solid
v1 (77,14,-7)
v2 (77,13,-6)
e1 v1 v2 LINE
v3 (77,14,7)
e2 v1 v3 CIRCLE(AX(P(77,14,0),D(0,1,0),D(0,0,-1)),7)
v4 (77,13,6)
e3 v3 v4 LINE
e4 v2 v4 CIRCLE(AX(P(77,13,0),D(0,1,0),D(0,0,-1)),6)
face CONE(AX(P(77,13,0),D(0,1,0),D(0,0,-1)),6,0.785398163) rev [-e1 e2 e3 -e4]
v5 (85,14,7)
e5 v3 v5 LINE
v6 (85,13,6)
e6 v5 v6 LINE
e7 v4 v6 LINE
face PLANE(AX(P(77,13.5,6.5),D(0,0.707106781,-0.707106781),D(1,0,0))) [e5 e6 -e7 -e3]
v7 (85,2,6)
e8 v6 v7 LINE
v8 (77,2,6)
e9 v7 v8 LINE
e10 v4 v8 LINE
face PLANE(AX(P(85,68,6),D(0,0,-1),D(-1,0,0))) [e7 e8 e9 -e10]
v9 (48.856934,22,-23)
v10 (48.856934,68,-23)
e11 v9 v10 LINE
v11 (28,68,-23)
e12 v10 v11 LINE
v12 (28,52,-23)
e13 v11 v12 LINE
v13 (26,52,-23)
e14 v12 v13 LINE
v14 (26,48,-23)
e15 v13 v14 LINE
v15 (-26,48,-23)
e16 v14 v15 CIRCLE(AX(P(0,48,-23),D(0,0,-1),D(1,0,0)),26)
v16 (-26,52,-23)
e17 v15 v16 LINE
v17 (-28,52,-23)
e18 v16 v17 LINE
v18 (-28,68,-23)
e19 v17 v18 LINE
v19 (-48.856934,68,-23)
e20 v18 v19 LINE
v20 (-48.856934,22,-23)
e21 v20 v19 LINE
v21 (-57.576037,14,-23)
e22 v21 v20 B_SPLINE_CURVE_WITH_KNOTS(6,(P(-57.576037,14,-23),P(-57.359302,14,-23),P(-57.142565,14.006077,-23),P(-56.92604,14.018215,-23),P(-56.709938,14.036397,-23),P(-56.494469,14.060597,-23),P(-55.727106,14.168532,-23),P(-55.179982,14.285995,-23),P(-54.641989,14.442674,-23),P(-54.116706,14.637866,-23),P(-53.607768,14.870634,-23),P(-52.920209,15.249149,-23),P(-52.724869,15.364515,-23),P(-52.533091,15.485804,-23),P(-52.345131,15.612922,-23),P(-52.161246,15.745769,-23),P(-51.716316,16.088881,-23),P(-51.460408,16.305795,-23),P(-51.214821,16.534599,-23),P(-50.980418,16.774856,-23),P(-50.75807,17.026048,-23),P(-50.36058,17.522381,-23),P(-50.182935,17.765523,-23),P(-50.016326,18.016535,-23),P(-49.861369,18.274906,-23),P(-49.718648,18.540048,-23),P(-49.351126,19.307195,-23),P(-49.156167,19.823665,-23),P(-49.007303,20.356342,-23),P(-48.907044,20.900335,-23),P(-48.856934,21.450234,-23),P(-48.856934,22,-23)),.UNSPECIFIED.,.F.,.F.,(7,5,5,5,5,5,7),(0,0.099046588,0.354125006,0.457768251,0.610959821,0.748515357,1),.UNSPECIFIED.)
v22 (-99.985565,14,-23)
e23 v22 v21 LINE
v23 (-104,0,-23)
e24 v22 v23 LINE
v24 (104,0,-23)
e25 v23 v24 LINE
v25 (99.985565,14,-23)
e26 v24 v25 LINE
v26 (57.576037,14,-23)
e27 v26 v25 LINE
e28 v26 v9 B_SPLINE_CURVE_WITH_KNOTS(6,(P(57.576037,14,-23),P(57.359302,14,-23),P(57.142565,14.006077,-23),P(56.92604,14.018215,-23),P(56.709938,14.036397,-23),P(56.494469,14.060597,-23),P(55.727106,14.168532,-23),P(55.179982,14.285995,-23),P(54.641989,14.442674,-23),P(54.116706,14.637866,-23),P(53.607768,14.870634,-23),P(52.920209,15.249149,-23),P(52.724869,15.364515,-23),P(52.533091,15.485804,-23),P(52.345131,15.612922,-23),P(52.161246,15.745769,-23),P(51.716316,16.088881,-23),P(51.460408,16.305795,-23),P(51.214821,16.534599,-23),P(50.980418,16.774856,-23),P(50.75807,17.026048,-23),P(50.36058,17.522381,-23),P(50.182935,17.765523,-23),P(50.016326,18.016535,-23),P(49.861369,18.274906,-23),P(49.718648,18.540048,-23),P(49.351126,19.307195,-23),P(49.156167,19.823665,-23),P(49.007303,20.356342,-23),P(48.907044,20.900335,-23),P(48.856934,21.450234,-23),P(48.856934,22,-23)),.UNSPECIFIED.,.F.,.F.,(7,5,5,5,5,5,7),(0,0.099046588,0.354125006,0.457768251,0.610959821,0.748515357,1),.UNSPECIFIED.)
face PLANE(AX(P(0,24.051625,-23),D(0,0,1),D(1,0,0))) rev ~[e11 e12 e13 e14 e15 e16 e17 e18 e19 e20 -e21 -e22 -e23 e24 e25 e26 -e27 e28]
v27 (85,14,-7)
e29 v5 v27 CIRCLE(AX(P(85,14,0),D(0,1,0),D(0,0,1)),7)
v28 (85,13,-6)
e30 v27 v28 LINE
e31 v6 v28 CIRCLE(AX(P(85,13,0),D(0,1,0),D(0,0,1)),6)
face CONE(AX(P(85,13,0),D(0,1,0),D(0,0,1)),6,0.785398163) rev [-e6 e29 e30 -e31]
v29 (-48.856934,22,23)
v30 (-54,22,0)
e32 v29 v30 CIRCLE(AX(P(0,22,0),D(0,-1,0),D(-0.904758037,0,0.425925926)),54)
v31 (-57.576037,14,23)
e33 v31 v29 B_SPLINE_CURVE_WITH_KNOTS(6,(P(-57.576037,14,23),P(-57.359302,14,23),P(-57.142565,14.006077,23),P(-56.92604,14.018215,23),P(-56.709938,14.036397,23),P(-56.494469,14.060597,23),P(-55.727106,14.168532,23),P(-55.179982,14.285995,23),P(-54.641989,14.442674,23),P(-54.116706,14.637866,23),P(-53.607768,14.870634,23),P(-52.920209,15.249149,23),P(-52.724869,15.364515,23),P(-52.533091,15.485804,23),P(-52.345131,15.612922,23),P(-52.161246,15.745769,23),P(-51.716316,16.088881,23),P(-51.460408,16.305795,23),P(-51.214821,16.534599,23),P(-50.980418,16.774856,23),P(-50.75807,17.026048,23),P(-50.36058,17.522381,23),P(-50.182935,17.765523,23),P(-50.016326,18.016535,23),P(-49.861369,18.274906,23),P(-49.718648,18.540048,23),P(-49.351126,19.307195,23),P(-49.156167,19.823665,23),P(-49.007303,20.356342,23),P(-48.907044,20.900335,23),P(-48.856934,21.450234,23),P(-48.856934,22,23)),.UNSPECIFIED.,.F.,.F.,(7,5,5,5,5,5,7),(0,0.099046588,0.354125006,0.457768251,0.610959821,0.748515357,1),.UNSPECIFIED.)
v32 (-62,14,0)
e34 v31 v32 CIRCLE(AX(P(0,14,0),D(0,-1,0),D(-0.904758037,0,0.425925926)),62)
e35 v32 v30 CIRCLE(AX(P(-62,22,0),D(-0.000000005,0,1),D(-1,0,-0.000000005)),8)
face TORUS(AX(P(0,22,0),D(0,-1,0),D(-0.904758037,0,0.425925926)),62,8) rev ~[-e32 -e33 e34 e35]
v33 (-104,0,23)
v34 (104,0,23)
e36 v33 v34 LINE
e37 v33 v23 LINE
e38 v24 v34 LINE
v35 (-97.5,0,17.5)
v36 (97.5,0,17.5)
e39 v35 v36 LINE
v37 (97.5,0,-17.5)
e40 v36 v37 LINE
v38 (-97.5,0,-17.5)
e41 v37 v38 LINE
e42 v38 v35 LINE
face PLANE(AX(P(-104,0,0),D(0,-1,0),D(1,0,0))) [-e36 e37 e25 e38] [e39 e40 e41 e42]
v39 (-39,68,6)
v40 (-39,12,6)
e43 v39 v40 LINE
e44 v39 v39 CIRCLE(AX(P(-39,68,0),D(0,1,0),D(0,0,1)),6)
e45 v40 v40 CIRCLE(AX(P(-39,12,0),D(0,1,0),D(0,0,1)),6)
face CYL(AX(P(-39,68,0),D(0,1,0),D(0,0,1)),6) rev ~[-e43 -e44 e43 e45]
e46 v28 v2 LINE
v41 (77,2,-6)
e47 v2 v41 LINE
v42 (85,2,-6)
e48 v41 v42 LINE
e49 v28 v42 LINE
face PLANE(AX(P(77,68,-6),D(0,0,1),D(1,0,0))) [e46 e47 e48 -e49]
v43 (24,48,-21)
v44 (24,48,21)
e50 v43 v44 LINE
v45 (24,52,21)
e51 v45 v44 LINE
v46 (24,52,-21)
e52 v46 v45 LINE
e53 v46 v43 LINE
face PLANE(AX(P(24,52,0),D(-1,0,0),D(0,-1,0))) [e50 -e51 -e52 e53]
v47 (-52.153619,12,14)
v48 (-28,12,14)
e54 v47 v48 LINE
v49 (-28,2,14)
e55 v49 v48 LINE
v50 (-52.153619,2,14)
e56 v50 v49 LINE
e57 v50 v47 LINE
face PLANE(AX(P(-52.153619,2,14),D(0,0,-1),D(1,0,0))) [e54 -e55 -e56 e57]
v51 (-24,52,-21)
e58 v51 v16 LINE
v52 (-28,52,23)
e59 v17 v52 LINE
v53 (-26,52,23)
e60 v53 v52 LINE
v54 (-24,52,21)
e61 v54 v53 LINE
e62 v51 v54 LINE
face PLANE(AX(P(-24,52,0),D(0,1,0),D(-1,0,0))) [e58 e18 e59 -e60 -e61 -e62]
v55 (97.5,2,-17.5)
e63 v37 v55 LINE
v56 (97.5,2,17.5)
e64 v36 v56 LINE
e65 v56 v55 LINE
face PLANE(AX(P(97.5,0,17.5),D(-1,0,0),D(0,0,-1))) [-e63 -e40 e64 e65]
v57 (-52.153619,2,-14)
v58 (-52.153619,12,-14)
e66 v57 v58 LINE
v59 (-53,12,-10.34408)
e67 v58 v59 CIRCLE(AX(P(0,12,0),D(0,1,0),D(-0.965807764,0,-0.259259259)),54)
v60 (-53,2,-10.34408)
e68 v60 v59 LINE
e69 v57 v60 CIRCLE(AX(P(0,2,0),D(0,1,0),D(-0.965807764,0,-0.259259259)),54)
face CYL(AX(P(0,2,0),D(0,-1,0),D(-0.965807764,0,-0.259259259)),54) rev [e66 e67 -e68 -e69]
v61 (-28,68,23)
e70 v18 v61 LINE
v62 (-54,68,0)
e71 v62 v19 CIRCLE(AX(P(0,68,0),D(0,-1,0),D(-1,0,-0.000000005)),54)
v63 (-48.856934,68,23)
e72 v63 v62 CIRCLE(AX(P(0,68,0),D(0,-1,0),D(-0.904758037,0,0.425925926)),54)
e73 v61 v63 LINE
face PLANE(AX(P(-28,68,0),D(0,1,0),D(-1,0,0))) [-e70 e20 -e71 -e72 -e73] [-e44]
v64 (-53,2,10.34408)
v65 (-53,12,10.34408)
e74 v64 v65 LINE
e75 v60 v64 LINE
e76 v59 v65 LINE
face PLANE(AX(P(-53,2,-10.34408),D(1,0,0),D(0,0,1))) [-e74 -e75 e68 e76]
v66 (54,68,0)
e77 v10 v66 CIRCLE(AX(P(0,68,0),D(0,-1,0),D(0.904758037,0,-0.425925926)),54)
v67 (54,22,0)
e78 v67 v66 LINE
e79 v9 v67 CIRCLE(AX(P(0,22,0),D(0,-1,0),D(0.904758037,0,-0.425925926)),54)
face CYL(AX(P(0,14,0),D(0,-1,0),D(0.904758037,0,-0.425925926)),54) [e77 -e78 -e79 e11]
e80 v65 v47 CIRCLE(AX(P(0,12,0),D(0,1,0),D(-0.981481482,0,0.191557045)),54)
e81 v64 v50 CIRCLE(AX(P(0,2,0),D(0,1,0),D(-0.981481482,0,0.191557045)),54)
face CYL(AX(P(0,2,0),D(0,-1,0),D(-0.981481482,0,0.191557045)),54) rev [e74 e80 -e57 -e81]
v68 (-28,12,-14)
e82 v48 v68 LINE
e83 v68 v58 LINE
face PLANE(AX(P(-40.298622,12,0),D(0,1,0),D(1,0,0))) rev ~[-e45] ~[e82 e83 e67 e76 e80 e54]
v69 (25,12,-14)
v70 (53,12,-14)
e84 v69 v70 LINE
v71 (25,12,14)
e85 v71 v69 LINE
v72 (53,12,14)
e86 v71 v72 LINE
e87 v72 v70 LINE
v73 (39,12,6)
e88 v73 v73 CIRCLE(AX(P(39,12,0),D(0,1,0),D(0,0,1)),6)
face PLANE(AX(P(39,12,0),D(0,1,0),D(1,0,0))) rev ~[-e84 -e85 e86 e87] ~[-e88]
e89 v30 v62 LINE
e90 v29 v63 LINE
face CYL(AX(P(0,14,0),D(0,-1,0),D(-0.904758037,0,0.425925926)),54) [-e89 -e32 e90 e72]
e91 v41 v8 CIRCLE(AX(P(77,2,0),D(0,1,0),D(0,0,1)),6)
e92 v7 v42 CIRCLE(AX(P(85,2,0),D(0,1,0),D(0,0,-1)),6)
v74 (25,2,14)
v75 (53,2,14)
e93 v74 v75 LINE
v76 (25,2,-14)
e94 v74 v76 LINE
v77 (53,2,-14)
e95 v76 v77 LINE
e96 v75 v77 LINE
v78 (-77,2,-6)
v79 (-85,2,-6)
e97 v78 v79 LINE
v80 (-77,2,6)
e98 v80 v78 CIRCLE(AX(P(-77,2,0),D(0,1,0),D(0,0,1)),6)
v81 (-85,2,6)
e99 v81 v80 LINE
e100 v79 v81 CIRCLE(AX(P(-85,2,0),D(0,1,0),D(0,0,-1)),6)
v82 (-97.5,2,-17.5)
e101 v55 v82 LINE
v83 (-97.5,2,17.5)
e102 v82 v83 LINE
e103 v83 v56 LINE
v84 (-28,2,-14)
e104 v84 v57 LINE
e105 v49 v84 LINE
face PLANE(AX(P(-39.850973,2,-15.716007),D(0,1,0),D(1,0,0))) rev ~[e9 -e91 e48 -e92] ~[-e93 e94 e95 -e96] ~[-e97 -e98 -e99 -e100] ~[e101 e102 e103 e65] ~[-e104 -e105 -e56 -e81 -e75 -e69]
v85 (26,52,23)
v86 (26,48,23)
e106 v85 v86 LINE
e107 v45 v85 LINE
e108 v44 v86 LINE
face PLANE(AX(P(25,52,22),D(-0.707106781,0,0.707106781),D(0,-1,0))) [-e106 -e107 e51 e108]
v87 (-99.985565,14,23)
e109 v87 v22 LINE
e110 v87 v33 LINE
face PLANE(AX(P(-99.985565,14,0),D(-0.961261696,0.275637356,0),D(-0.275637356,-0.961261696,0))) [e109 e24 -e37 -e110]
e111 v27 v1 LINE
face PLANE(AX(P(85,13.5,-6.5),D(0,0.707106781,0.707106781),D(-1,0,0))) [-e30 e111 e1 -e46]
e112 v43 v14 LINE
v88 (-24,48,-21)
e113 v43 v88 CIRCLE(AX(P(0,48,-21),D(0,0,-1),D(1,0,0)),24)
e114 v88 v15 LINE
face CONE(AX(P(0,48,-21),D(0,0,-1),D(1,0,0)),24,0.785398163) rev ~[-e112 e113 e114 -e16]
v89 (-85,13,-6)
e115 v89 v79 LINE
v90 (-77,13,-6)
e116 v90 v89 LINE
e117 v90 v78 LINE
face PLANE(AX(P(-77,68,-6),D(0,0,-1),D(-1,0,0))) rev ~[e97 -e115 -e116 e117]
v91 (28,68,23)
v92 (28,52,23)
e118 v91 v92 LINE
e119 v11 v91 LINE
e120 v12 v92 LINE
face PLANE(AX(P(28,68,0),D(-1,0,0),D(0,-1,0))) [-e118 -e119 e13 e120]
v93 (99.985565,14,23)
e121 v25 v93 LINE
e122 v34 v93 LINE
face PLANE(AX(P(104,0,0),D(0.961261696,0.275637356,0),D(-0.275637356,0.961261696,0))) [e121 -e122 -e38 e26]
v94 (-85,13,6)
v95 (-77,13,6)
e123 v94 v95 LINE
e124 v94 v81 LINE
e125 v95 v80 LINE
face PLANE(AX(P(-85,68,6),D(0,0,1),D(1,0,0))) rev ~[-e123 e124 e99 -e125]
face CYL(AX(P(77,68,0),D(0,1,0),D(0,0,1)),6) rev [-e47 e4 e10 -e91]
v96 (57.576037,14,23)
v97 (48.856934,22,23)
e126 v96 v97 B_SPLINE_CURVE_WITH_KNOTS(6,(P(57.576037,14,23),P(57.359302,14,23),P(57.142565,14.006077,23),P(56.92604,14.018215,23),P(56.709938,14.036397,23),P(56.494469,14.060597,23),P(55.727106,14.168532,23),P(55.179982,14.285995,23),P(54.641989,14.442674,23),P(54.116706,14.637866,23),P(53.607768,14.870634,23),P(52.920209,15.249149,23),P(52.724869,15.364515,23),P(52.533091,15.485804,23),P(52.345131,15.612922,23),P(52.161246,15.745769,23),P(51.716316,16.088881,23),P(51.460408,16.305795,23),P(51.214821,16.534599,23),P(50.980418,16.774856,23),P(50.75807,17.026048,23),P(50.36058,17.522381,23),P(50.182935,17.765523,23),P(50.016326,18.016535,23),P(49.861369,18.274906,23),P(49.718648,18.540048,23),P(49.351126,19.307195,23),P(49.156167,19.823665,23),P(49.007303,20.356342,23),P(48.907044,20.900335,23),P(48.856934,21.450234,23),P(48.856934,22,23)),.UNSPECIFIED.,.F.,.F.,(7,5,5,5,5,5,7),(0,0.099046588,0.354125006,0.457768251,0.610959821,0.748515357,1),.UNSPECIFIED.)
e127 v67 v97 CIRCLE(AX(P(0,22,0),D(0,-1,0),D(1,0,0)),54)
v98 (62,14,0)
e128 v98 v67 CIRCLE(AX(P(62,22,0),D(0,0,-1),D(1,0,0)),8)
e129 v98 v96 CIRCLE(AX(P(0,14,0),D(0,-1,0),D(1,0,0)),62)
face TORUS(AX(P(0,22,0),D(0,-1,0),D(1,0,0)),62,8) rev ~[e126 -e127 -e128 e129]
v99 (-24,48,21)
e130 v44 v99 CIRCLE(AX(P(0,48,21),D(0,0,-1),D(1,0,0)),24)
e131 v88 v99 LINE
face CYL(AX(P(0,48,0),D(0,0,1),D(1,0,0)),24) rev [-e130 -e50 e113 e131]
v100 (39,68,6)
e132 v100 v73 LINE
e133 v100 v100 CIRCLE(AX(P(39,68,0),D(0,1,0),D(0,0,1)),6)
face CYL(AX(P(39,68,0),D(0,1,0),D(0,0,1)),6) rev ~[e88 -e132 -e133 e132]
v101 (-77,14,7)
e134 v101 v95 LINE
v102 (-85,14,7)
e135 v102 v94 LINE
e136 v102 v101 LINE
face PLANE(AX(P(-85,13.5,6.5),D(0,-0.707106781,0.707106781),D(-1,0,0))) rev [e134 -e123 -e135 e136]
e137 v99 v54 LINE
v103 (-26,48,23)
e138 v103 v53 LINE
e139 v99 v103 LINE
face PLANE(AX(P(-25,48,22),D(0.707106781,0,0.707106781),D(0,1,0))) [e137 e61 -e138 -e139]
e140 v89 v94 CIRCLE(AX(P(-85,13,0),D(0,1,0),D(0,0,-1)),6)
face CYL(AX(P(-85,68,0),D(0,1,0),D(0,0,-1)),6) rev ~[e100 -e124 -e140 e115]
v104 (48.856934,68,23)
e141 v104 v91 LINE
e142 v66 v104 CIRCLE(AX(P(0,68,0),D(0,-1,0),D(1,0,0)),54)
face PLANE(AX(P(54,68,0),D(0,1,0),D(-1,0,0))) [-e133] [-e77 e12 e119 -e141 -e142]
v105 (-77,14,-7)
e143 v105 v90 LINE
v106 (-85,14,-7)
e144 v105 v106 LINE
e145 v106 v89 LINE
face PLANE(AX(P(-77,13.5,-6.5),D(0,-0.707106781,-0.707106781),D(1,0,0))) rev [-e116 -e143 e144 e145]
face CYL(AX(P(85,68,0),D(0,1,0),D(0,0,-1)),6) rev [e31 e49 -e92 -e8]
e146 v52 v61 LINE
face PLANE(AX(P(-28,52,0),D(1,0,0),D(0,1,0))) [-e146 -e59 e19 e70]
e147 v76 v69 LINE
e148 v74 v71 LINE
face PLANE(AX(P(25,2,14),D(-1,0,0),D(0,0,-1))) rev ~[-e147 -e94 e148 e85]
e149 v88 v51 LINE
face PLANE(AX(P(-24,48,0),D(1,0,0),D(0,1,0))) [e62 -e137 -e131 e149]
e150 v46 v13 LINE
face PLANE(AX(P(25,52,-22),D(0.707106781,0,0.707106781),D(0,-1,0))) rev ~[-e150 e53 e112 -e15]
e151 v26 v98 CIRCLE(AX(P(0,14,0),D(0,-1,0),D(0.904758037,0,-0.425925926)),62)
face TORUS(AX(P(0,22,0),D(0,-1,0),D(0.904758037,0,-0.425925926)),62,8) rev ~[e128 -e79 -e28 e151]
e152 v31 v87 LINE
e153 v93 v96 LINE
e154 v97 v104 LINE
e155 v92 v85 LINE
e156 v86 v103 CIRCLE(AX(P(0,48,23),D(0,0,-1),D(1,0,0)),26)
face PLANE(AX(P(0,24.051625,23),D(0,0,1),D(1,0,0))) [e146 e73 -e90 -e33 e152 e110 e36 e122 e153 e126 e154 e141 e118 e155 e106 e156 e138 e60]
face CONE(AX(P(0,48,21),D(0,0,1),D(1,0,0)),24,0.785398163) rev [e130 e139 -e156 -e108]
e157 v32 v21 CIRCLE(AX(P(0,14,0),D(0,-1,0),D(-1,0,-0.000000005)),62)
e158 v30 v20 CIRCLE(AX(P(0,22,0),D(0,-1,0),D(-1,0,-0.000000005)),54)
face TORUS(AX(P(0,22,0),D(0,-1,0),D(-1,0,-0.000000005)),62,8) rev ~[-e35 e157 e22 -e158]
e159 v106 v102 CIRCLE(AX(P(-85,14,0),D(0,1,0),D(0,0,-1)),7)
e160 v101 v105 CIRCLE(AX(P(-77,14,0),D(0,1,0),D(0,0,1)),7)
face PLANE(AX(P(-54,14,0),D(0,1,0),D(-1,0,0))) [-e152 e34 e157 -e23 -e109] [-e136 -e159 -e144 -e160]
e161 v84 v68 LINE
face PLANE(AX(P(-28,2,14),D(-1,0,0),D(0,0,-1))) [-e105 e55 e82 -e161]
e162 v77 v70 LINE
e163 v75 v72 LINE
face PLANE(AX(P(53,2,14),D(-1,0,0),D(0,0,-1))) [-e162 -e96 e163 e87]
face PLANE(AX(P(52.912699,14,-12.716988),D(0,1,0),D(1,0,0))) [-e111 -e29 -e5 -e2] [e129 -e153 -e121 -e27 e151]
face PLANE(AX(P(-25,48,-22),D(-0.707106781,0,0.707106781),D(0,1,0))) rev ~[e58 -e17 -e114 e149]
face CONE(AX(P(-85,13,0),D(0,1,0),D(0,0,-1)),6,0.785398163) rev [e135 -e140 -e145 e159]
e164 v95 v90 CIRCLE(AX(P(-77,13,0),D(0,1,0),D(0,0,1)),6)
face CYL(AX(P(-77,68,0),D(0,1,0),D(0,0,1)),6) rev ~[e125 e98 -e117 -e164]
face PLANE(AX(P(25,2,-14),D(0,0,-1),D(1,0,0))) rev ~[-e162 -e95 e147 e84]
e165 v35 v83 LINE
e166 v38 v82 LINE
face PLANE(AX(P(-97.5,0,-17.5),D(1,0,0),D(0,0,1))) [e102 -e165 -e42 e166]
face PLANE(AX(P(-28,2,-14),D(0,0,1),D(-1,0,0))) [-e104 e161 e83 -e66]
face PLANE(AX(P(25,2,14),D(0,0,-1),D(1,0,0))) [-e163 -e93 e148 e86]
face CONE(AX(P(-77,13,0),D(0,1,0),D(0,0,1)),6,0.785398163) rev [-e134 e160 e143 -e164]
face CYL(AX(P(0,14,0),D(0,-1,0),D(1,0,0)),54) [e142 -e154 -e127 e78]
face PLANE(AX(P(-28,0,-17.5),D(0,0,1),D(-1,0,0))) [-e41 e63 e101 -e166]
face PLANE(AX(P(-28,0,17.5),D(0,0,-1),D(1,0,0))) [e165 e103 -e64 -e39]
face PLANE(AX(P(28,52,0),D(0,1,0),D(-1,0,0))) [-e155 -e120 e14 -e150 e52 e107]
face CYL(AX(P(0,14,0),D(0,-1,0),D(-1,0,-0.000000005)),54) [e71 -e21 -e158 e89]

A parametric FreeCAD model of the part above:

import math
import FreeCAD as App
import Part
import Sketcher

V = App.Vector
Q = App.Units.Quantity


def edges_at(feature, points):
    """Names of the edges that pass closest to the given points."""
    edges = feature.Shape.Edges
    near = lambda p: min(range(len(edges)), key=lambda i: edges[i].distToShape(Part.Vertex(*p))[0])
    return sorted({f"Edge{near(p) + 1}" for p in points})


def add_polygon(sketch, points):
    """Adds a closed chain of lines whose ends are joined by coincident constraints."""
    first, n = sketch.GeometryCount, len(points)
    for a, b in zip(points, points[1:] + points[:1]):
        sketch.addGeometry(Part.LineSegment(App.Vector(*a, 0), App.Vector(*b, 0)), False)
    for i in range(n):
        sketch.addConstraint(Sketcher.Constraint("Coincident", first + i, 2, first + (i + 1) % n, 1))

doc = App.newDocument("Part")
params = doc.addObject("Spreadsheet::Sheet", "Params")
for row, (alias, value) in enumerate([
    ("sketch1_radius", "24 mm"),
    ("sketch1_width", "208 mm"),
    ("sketch1_width2", "26 mm"),
    ("sketch1_width3", "4 mm"),
    ("sketch1_height", "54 mm"),
    ("pad1_length", "46 mm"),
    ("sketch2_radius", "54 mm"),
    ("sketch2_height", "23 mm"),
    ("pocket1_length", "76 mm"),
    ("chamfer_size", "2 mm"),
    ("sketch3_width", "195 mm"),
    ("sketch3_height", "35 mm"),
    ("pocket2_length", "2 mm"),
    ("sketch4_diameter", "12 mm"),
    ("sketch4_width", "8 mm"),
    ("sketch5_radius", "54 mm"),
    ("sketch5_width", "28 mm"),
    ("pocket4_length", "10 mm"),
    ("chamfer2_size", "1 mm"),
    ("fillet_radius", "8 mm"),
], start=1):
    params.set(f"A{row}", alias)
    params.set(f"B{row}", "=" + value)
    params.setAlias(f"B{row}", alias)

body = doc.addObject("PartDesign::Body", "Body")

# Sketch on XY plane
sketch1 = body.newObject("Sketcher::SketchObject", "Sketch")
sketch1.AttachmentSupport = (doc.getObject("XY_Plane"), [""])
sketch1.MapMode = "FlatFace"
sketch1.addGeometry(Part.LineSegment(V(-104, 0, 0), V(104, 0, 0)), False)
sketch1.addGeometry(Part.LineSegment(V(104, 0, 0), V(100, 14, 0)), False)
sketch1.addGeometry(Part.LineSegment(V(100, 14, 0), V(54, 14, 0)), False)
sketch1.addGeometry(Part.LineSegment(V(54, 14, 0), V(54, 68, 0)), False)
sketch1.addGeometry(Part.LineSegment(V(54, 68, 0), V(28, 68, 0)), False)
sketch1.addGeometry(Part.LineSegment(V(28, 68, 0), V(28, 52, 0)), False)
sketch1.addGeometry(Part.LineSegment(V(28, 52, 0), V(24, 52, 0)), False)
sketch1.addGeometry(Part.LineSegment(V(24, 52, 0), V(24, 48, 0)), False)
sketch1.addGeometry(Part.ArcOfCircle(Part.Circle(V(0, 48, 0), V(0, 0, 1), 24), math.radians(180), math.radians(360)), False)
sketch1.addGeometry(Part.LineSegment(V(-24, 48, 0), V(-24, 52, 0)), False)
sketch1.addGeometry(Part.LineSegment(V(-24, 52, 0), V(-28, 52, 0)), False)
sketch1.addGeometry(Part.LineSegment(V(-28, 52, 0), V(-28, 68, 0)), False)
sketch1.addGeometry(Part.LineSegment(V(-28, 68, 0), V(-54, 68, 0)), False)
sketch1.addGeometry(Part.LineSegment(V(-54, 68, 0), V(-54, 14, 0)), False)
sketch1.addGeometry(Part.LineSegment(V(-54, 14, 0), V(-100, 14, 0)), False)
sketch1.addGeometry(Part.LineSegment(V(-100, 14, 0), V(-104, 0, 0)), False)
sketch1.addConstraint(Sketcher.Constraint("Coincident", 0, 2, 1, 1))
sketch1.addConstraint(Sketcher.Constraint("Coincident", 1, 2, 2, 1))
sketch1.addConstraint(Sketcher.Constraint("Coincident", 2, 2, 3, 1))
sketch1.addConstraint(Sketcher.Constraint("Coincident", 3, 2, 4, 1))
sketch1.addConstraint(Sketcher.Constraint("Coincident", 4, 2, 5, 1))
sketch1.addConstraint(Sketcher.Constraint("Coincident", 5, 2, 6, 1))
sketch1.addConstraint(Sketcher.Constraint("Coincident", 6, 2, 7, 1))
sketch1.addConstraint(Sketcher.Constraint("Tangent", 7, 2, 8, 2))
sketch1.addConstraint(Sketcher.Constraint("Tangent", 8, 1, 9, 1))
sketch1.addConstraint(Sketcher.Constraint("Coincident", 9, 2, 10, 1))
sketch1.addConstraint(Sketcher.Constraint("Coincident", 10, 2, 11, 1))
sketch1.addConstraint(Sketcher.Constraint("Coincident", 11, 2, 12, 1))
sketch1.addConstraint(Sketcher.Constraint("Coincident", 12, 2, 13, 1))
sketch1.addConstraint(Sketcher.Constraint("Coincident", 13, 2, 14, 1))
sketch1.addConstraint(Sketcher.Constraint("Coincident", 14, 2, 15, 1))
sketch1.addConstraint(Sketcher.Constraint("Coincident", 15, 2, 0, 1))
sketch1.addConstraint(Sketcher.Constraint("Horizontal", 0))
sketch1.addConstraint(Sketcher.Constraint("Horizontal", 2))
sketch1.addConstraint(Sketcher.Constraint("Vertical", 3))
sketch1.addConstraint(Sketcher.Constraint("Horizontal", 4))
sketch1.addConstraint(Sketcher.Constraint("Vertical", 5))
sketch1.addConstraint(Sketcher.Constraint("Horizontal", 6))
sketch1.addConstraint(Sketcher.Constraint("Vertical", 7))
sketch1.addConstraint(Sketcher.Constraint("Vertical", 9))
sketch1.addConstraint(Sketcher.Constraint("Horizontal", 10))
sketch1.addConstraint(Sketcher.Constraint("Vertical", 11))
sketch1.addConstraint(Sketcher.Constraint("Horizontal", 12))
sketch1.addConstraint(Sketcher.Constraint("Vertical", 13))
sketch1.addConstraint(Sketcher.Constraint("Horizontal", 14))
sketch1.addConstraint(Sketcher.Constraint("Symmetric", 0, 2, 15, 2, -1, 1))
sketch1.addConstraint(Sketcher.Constraint("Symmetric", 6, 2, 9, 2, -2))
sketch1.addConstraint(Sketcher.Constraint("Symmetric", 4, 2, 11, 2, -2))
sketch1.addConstraint(Sketcher.Constraint("Symmetric", 2, 2, 13, 2, -2))
sketch1.addConstraint(Sketcher.Constraint("Equal", 2, 14))
sketch1.addConstraint(Sketcher.Constraint("Equal", 10, 7))
sketch1.addConstraint(Sketcher.Constraint("Radius", 8, 24.0))
sketch1.addConstraint(Sketcher.Constraint("DistanceX", 0, 1, 0, 2, 208.0))
sketch1.addConstraint(Sketcher.Constraint("DistanceX", 4, 2, 4, 1, 26.0))
sketch1.addConstraint(Sketcher.Constraint("DistanceX", 6, 2, 6, 1, 4.0))
sketch1.addConstraint(Sketcher.Constraint("DistanceY", 3, 1, 3, 2, 54.0))
sketch1.addConstraint(Sketcher.Constraint("DistanceY", 5, 2, 5, 1, 16.0))
sketch1.addConstraint(Sketcher.Constraint("Angle", 1, Q("106 deg")))
sketch1.addConstraint(Sketcher.Constraint("DistanceY", -1, 1, 8, 3, 48.0))
sketch1.setExpression("Constraints[35]", "Params.sketch1_radius")
sketch1.setExpression("Constraints[36]", "Params.sketch1_width")
sketch1.setExpression("Constraints[37]", "Params.sketch1_width2")
sketch1.setExpression("Constraints[38]", "Params.sketch1_width3")
sketch1.setExpression("Constraints[39]", "Params.sketch1_height")
pad1 = body.newObject("PartDesign::Pad", "Pad")
pad1.Profile = sketch1
pad1.setExpression("Length", "Params.pad1_length")
pad1.Midplane = True

# Sketch on XZ plane
sketch2 = body.newObject("Sketcher::SketchObject", "Sketch001")
sketch2.AttachmentSupport = (doc.getObject("XZ_Plane"), [""])
sketch2.MapMode = "FlatFace"
sketch2.AttachmentOffset = App.Placement(V(0, 0, -14), App.Rotation())
sketch2.addGeometry(Part.LineSegment(V(-49, -23, 0), V(-54, -23, 0)), False)
sketch2.addGeometry(Part.LineSegment(V(-54, -23, 0), V(-54, 0, 0)), False)
sketch2.addGeometry(Part.ArcOfCircle(Part.Circle(V(0, 0, 0), V(0, 0, 1), 54), math.radians(-180), math.radians(-155)), False)
sketch2.addGeometry(Part.ArcOfCircle(Part.Circle(V(0, 0, 0), V(0, 0, 1), 54), math.radians(155), math.radians(180)), False)
sketch2.addGeometry(Part.LineSegment(V(-54, 0, 0), V(-54, 23, 0)), False)
sketch2.addGeometry(Part.LineSegment(V(-54, 23, 0), V(-49, 23, 0)), False)
sketch2.addGeometry(Part.LineSegment(V(49, 23, 0), V(54, 23, 0)), False)
sketch2.addGeometry(Part.LineSegment(V(54, 23, 0), V(54, 0, 0)), False)
sketch2.addGeometry(Part.ArcOfCircle(Part.Circle(V(0, 0, 0), V(0, 0, 1), 54), math.radians(0), math.radians(25)), False)
sketch2.addGeometry(Part.ArcOfCircle(Part.Circle(V(0, 0, 0), V(0, 0, 1), 54), math.radians(-25), math.radians(0)), False)
sketch2.addGeometry(Part.LineSegment(V(54, 0, 0), V(54, -23, 0)), False)
sketch2.addGeometry(Part.LineSegment(V(54, -23, 0), V(49, -23, 0)), False)
sketch2.addConstraint(Sketcher.Constraint("Coincident", 0, 2, 1, 1))
sketch2.addConstraint(Sketcher.Constraint("Tangent", 1, 2, 2, 1))
sketch2.addConstraint(Sketcher.Constraint("Coincident", 2, 2, 0, 1))
sketch2.addConstraint(Sketcher.Constraint("Tangent", 3, 2, 4, 1))
sketch2.addConstraint(Sketcher.Constraint("Coincident", 4, 2, 5, 1))
sketch2.addConstraint(Sketcher.Constraint("Coincident", 5, 2, 3, 1))
sketch2.addConstraint(Sketcher.Constraint("Coincident", 6, 2, 7, 1))
sketch2.addConstraint(Sketcher.Constraint("Tangent", 7, 2, 8, 1))
sketch2.addConstraint(Sketcher.Constraint("Coincident", 8, 2, 6, 1))
sketch2.addConstraint(Sketcher.Constraint("Tangent", 9, 2, 10, 1))
sketch2.addConstraint(Sketcher.Constraint("Coincident", 10, 2, 11, 1))
sketch2.addConstraint(Sketcher.Constraint("Coincident", 11, 2, 9, 1))
sketch2.addConstraint(Sketcher.Constraint("Horizontal", 0))
sketch2.addConstraint(Sketcher.Constraint("Vertical", 1))
sketch2.addConstraint(Sketcher.Constraint("Vertical", 4))
sketch2.addConstraint(Sketcher.Constraint("Horizontal", 5))
sketch2.addConstraint(Sketcher.Constraint("Horizontal", 6))
sketch2.addConstraint(Sketcher.Constraint("Vertical", 7))
sketch2.addConstraint(Sketcher.Constraint("Vertical", 10))
sketch2.addConstraint(Sketcher.Constraint("Horizontal", 11))
sketch2.addConstraint(Sketcher.Constraint("Coincident", 2, 3, -1, 1))
sketch2.addConstraint(Sketcher.Constraint("Coincident", 3, 3, -1, 1))
sketch2.addConstraint(Sketcher.Constraint("Coincident", 8, 3, -1, 1))
sketch2.addConstraint(Sketcher.Constraint("Coincident", 9, 3, -1, 1))
sketch2.addConstraint(Sketcher.Constraint("Equal", 2, 3))
sketch2.addConstraint(Sketcher.Constraint("Equal", 3, 8))
sketch2.addConstraint(Sketcher.Constraint("Equal", 8, 9))
sketch2.addConstraint(Sketcher.Constraint("Horizontal", 5, 2, 6, 2))
sketch2.addConstraint(Sketcher.Constraint("Horizontal", 2, 2, 10, 2))
sketch2.addConstraint(Sketcher.Constraint("Vertical", 2, 2, 5, 2))
sketch2.addConstraint(Sketcher.Constraint("Radius", 2, 54.0))
sketch2.addConstraint(Sketcher.Constraint("DistanceY", 1, 1, 1, 2, 23.0))
sketch2.setExpression("Constraints[30]", "Params.sketch2_radius")
sketch2.setExpression("Constraints[31]", "Params.sketch2_height")
pocket1 = body.newObject("PartDesign::Pocket", "Pocket")
pocket1.Profile = sketch2
pocket1.setExpression("Length", "Params.pocket1_length")
doc.recompute()

chamfer = body.newObject("PartDesign::Chamfer", "Chamfer")
chamfer.Base = (pocket1, edges_at(pocket1, [
    (-24, 50, -23),
    (0, 24, -23),
    (24, 50, -23),
    (24, 50, 23),
    (0, 24, 23),
    (-24, 50, 23),
]))
chamfer.setExpression("Size", "Params.chamfer_size")

# Sketch on XZ plane
sketch3 = body.newObject("Sketcher::SketchObject", "Sketch002")
sketch3.AttachmentSupport = (doc.getObject("XZ_Plane"), [""])
sketch3.MapMode = "FlatFace"
add_polygon(sketch3, [(-98, -18), (-98, 18), (98, 18), (98, -18)])  # lines 0-3
sketch3.addConstraint(Sketcher.Constraint("Vertical", 0))
sketch3.addConstraint(Sketcher.Constraint("Horizontal", 1))
sketch3.addConstraint(Sketcher.Constraint("Vertical", 2))
sketch3.addConstraint(Sketcher.Constraint("Horizontal", 3))
sketch3.addConstraint(Sketcher.Constraint("Symmetric", 0, 2, 2, 2, -1, 1))
sketch3.addConstraint(Sketcher.Constraint("DistanceX", 1, 1, 1, 2, 195.0))
sketch3.addConstraint(Sketcher.Constraint("DistanceY", 0, 1, 0, 2, 35.0))
sketch3.setExpression("Constraints[9]", "Params.sketch3_width")
sketch3.setExpression("Constraints[10]", "Params.sketch3_height")
pocket2 = body.newObject("PartDesign::Pocket", "Pocket001")
pocket2.Profile = sketch3
pocket2.setExpression("Length", "Params.pocket2_length")

# Sketch on XZ plane
sketch4 = body.newObject("Sketcher::SketchObject", "Sketch003")
sketch4.AttachmentSupport = (doc.getObject("XZ_Plane"), [""])
sketch4.MapMode = "FlatFace"
sketch4.AttachmentOffset = App.Placement(V(0, 0, -68), App.Rotation())
sketch4.addGeometry(Part.Circle(V(-39, 0, 0), V(0, 0, 1), 6), False)
sketch4.addGeometry(Part.Circle(V(39, 0, 0), V(0, 0, 1), 6), False)
sketch4.addGeometry(Part.LineSegment(V(-85, 6, 0), V(-77, 6, 0)), False)
sketch4.addGeometry(Part.ArcOfCircle(Part.Circle(V(-77, 0, 0), V(0, 0, 1), 6), math.radians(-90), math.radians(90)), False)
sketch4.addGeometry(Part.LineSegment(V(-77, -6, 0), V(-85, -6, 0)), False)
sketch4.addGeometry(Part.ArcOfCircle(Part.Circle(V(-85, 0, 0), V(0, 0, 1), 6), math.radians(90), math.radians(270)), False)
sketch4.addGeometry(Part.ArcOfCircle(Part.Circle(V(77, 0, 0), V(0, 0, 1), 6), math.radians(90), math.radians(270)), False)
sketch4.addGeometry(Part.LineSegment(V(77, 6, 0), V(85, 6, 0)), False)
sketch4.addGeometry(Part.ArcOfCircle(Part.Circle(V(85, 0, 0), V(0, 0, 1), 6), math.radians(-90), math.radians(90)), False)
sketch4.addGeometry(Part.LineSegment(V(85, -6, 0), V(77, -6, 0)), False)
sketch4.addConstraint(Sketcher.Constraint("Tangent", 2, 2, 3, 2))
sketch4.addConstraint(Sketcher.Constraint("Tangent", 3, 1, 4, 1))
sketch4.addConstraint(Sketcher.Constraint("Tangent", 4, 2, 5, 2))
sketch4.addConstraint(Sketcher.Constraint("Tangent", 5, 1, 2, 1))
sketch4.addConstraint(Sketcher.Constraint("Tangent", 6, 1, 7, 1))
sketch4.addConstraint(Sketcher.Constraint("Tangent", 7, 2, 8, 2))
sketch4.addConstraint(Sketcher.Constraint("Tangent", 8, 1, 9, 1))
sketch4.addConstraint(Sketcher.Constraint("Tangent", 9, 2, 6, 2))
sketch4.addConstraint(Sketcher.Constraint("Horizontal", 2))
sketch4.addConstraint(Sketcher.Constraint("Horizontal", 4))
sketch4.addConstraint(Sketcher.Constraint("Horizontal", 7))
sketch4.addConstraint(Sketcher.Constraint("Horizontal", 9))
sketch4.addConstraint(Sketcher.Constraint("Equal", 0, 1))
sketch4.addConstraint(Sketcher.Constraint("Equal", 1, 3))
sketch4.addConstraint(Sketcher.Constraint("Equal", 5, 6))
sketch4.addConstraint(Sketcher.Constraint("Symmetric", 0, 3, 1, 3, -1, 1))
sketch4.addConstraint(Sketcher.Constraint("Symmetric", 3, 3, 6, 3, -1, 1))
sketch4.addConstraint(Sketcher.Constraint("Symmetric", 5, 3, 8, 3, -2))
sketch4.addConstraint(Sketcher.Constraint("PointOnObject", 0, 3, -1))
sketch4.addConstraint(Sketcher.Constraint("Diameter", 0, 12.0))
sketch4.addConstraint(Sketcher.Constraint("DistanceX", 2, 1, 2, 2, 8.0))
sketch4.addConstraint(Sketcher.Constraint("DistanceX", 0, 3, -1, 1, 39.0))
sketch4.addConstraint(Sketcher.Constraint("DistanceX", 3, 3, -1, 1, 77.0))
sketch4.setExpression("Constraints[19]", "Params.sketch4_diameter")
sketch4.setExpression("Constraints[20]", "Params.sketch4_width")
pocket3 = body.newObject("PartDesign::Pocket", "Pocket002")
pocket3.Profile = sketch4
pocket3.Type = "ThroughAll"
pocket3.Reversed = True

# Sketch on XZ plane
sketch5 = body.newObject("Sketcher::SketchObject", "Sketch004")
sketch5.AttachmentSupport = (doc.getObject("XZ_Plane"), [""])
sketch5.MapMode = "FlatFace"
sketch5.AttachmentOffset = App.Placement(V(0, 0, -2), App.Rotation())
sketch5.addGeometry(Part.LineSegment(V(-28, -14, 0), V(-52.2, -14, 0)), False)  # 0
sketch5.addGeometry(Part.ArcOfCircle(Part.Circle(V(0, 0, 0), V(0, 0, 1), 54), math.radians(-168.96), math.radians(-164.97)), False)  # 1
sketch5.addGeometry(Part.LineSegment(V(-53, -10.3, 0), V(-53, 10.3, 0)), False)  # 2
sketch5.addGeometry(Part.ArcOfCircle(Part.Circle(V(0, 0, 0), V(0, 0, 1), 54), math.radians(164.97), math.radians(168.96)), False)  # 3
sketch5.addGeometry(Part.LineSegment(V(-52.2, 14, 0), V(-28, 14, 0)), False)  # 4
sketch5.addGeometry(Part.LineSegment(V(-28, 14, 0), V(-28, -14, 0)), False)  # 5
add_polygon(sketch5, [(25, -14), (25, 14), (53, 14), (53, -14)])  # lines 6-9
sketch5.addConstraint(Sketcher.Constraint("Coincident", 0, 2, 1, 2))
sketch5.addConstraint(Sketcher.Constraint("Coincident", 1, 1, 2, 1))
sketch5.addConstraint(Sketcher.Constraint("Coincident", 2, 2, 3, 2))
sketch5.addConstraint(Sketcher.Constraint("Coincident", 3, 1, 4, 1))
sketch5.addConstraint(Sketcher.Constraint("Coincident", 4, 2, 5, 1))
sketch5.addConstraint(Sketcher.Constraint("Coincident", 5, 2, 0, 1))
sketch5.addConstraint(Sketcher.Constraint("Horizontal", 0))
sketch5.addConstraint(Sketcher.Constraint("Vertical", 2))
sketch5.addConstraint(Sketcher.Constraint("Horizontal", 4))
sketch5.addConstraint(Sketcher.Constraint("Vertical", 5))
sketch5.addConstraint(Sketcher.Constraint("Vertical", 6))
sketch5.addConstraint(Sketcher.Constraint("Horizontal", 7))
sketch5.addConstraint(Sketcher.Constraint("Vertical", 8))
sketch5.addConstraint(Sketcher.Constraint("Horizontal", 9))
sketch5.addConstraint(Sketcher.Constraint("Coincident", 1, 3, -1, 1))
sketch5.addConstraint(Sketcher.Constraint("Coincident", 3, 3, -1, 1))
sketch5.addConstraint(Sketcher.Constraint("Equal", 1, 3))
sketch5.addConstraint(Sketcher.Constraint("Horizontal", 4, 2, 6, 2))
sketch5.addConstraint(Sketcher.Constraint("Horizontal", 5, 2, 8, 2))
sketch5.addConstraint(Sketcher.Constraint("Vertical", 0, 2, 3, 1))
sketch5.addConstraint(Sketcher.Constraint("Equal", 9, 5))
sketch5.addConstraint(Sketcher.Constraint("Radius", 1, 54.0))
sketch5.addConstraint(Sketcher.Constraint("DistanceX", 7, 1, 7, 2, 28.0))
sketch5.addConstraint(Sketcher.Constraint("DistanceX", 1, 1, -1, 1, 53.0))
sketch5.addConstraint(Sketcher.Constraint("DistanceX", 4, 2, -1, 1, 28.0))
sketch5.addConstraint(Sketcher.Constraint("DistanceX", -1, 1, 6, 2, 25.0))
sketch5.setExpression("Constraints[25]", "Params.sketch5_radius")
sketch5.setExpression("Constraints[26]", "Params.sketch5_width")
pocket4 = body.newObject("PartDesign::Pocket", "Pocket003")
pocket4.Profile = sketch5
pocket4.setExpression("Length", "Params.pocket4_length")
doc.recompute()

chamfer2 = body.newObject("PartDesign::Chamfer", "Chamfer001")
chamfer2.Base = (pocket4, edges_at(pocket4, [
    (71, 14, 0),
    (81, 14, -6),
    (91, 14, 0),
    (81, 14, 6),
    (-81, 14, 6),
    (-91, 14, 0),
    (-81, 14, -6),
    (-71, 14, 0),
]))
chamfer2.setExpression("Size", "Params.chamfer2_size")
doc.recompute()

fillet = body.newObject("PartDesign::Fillet", "Fillet")
fillet.Base = (chamfer2, edges_at(chamfer2, [(-52.699, 14, 11.784), (52.699, 14, -11.784)]))
fillet.setExpression("Radius", "Params.fillet_radius")

doc.recompute()
